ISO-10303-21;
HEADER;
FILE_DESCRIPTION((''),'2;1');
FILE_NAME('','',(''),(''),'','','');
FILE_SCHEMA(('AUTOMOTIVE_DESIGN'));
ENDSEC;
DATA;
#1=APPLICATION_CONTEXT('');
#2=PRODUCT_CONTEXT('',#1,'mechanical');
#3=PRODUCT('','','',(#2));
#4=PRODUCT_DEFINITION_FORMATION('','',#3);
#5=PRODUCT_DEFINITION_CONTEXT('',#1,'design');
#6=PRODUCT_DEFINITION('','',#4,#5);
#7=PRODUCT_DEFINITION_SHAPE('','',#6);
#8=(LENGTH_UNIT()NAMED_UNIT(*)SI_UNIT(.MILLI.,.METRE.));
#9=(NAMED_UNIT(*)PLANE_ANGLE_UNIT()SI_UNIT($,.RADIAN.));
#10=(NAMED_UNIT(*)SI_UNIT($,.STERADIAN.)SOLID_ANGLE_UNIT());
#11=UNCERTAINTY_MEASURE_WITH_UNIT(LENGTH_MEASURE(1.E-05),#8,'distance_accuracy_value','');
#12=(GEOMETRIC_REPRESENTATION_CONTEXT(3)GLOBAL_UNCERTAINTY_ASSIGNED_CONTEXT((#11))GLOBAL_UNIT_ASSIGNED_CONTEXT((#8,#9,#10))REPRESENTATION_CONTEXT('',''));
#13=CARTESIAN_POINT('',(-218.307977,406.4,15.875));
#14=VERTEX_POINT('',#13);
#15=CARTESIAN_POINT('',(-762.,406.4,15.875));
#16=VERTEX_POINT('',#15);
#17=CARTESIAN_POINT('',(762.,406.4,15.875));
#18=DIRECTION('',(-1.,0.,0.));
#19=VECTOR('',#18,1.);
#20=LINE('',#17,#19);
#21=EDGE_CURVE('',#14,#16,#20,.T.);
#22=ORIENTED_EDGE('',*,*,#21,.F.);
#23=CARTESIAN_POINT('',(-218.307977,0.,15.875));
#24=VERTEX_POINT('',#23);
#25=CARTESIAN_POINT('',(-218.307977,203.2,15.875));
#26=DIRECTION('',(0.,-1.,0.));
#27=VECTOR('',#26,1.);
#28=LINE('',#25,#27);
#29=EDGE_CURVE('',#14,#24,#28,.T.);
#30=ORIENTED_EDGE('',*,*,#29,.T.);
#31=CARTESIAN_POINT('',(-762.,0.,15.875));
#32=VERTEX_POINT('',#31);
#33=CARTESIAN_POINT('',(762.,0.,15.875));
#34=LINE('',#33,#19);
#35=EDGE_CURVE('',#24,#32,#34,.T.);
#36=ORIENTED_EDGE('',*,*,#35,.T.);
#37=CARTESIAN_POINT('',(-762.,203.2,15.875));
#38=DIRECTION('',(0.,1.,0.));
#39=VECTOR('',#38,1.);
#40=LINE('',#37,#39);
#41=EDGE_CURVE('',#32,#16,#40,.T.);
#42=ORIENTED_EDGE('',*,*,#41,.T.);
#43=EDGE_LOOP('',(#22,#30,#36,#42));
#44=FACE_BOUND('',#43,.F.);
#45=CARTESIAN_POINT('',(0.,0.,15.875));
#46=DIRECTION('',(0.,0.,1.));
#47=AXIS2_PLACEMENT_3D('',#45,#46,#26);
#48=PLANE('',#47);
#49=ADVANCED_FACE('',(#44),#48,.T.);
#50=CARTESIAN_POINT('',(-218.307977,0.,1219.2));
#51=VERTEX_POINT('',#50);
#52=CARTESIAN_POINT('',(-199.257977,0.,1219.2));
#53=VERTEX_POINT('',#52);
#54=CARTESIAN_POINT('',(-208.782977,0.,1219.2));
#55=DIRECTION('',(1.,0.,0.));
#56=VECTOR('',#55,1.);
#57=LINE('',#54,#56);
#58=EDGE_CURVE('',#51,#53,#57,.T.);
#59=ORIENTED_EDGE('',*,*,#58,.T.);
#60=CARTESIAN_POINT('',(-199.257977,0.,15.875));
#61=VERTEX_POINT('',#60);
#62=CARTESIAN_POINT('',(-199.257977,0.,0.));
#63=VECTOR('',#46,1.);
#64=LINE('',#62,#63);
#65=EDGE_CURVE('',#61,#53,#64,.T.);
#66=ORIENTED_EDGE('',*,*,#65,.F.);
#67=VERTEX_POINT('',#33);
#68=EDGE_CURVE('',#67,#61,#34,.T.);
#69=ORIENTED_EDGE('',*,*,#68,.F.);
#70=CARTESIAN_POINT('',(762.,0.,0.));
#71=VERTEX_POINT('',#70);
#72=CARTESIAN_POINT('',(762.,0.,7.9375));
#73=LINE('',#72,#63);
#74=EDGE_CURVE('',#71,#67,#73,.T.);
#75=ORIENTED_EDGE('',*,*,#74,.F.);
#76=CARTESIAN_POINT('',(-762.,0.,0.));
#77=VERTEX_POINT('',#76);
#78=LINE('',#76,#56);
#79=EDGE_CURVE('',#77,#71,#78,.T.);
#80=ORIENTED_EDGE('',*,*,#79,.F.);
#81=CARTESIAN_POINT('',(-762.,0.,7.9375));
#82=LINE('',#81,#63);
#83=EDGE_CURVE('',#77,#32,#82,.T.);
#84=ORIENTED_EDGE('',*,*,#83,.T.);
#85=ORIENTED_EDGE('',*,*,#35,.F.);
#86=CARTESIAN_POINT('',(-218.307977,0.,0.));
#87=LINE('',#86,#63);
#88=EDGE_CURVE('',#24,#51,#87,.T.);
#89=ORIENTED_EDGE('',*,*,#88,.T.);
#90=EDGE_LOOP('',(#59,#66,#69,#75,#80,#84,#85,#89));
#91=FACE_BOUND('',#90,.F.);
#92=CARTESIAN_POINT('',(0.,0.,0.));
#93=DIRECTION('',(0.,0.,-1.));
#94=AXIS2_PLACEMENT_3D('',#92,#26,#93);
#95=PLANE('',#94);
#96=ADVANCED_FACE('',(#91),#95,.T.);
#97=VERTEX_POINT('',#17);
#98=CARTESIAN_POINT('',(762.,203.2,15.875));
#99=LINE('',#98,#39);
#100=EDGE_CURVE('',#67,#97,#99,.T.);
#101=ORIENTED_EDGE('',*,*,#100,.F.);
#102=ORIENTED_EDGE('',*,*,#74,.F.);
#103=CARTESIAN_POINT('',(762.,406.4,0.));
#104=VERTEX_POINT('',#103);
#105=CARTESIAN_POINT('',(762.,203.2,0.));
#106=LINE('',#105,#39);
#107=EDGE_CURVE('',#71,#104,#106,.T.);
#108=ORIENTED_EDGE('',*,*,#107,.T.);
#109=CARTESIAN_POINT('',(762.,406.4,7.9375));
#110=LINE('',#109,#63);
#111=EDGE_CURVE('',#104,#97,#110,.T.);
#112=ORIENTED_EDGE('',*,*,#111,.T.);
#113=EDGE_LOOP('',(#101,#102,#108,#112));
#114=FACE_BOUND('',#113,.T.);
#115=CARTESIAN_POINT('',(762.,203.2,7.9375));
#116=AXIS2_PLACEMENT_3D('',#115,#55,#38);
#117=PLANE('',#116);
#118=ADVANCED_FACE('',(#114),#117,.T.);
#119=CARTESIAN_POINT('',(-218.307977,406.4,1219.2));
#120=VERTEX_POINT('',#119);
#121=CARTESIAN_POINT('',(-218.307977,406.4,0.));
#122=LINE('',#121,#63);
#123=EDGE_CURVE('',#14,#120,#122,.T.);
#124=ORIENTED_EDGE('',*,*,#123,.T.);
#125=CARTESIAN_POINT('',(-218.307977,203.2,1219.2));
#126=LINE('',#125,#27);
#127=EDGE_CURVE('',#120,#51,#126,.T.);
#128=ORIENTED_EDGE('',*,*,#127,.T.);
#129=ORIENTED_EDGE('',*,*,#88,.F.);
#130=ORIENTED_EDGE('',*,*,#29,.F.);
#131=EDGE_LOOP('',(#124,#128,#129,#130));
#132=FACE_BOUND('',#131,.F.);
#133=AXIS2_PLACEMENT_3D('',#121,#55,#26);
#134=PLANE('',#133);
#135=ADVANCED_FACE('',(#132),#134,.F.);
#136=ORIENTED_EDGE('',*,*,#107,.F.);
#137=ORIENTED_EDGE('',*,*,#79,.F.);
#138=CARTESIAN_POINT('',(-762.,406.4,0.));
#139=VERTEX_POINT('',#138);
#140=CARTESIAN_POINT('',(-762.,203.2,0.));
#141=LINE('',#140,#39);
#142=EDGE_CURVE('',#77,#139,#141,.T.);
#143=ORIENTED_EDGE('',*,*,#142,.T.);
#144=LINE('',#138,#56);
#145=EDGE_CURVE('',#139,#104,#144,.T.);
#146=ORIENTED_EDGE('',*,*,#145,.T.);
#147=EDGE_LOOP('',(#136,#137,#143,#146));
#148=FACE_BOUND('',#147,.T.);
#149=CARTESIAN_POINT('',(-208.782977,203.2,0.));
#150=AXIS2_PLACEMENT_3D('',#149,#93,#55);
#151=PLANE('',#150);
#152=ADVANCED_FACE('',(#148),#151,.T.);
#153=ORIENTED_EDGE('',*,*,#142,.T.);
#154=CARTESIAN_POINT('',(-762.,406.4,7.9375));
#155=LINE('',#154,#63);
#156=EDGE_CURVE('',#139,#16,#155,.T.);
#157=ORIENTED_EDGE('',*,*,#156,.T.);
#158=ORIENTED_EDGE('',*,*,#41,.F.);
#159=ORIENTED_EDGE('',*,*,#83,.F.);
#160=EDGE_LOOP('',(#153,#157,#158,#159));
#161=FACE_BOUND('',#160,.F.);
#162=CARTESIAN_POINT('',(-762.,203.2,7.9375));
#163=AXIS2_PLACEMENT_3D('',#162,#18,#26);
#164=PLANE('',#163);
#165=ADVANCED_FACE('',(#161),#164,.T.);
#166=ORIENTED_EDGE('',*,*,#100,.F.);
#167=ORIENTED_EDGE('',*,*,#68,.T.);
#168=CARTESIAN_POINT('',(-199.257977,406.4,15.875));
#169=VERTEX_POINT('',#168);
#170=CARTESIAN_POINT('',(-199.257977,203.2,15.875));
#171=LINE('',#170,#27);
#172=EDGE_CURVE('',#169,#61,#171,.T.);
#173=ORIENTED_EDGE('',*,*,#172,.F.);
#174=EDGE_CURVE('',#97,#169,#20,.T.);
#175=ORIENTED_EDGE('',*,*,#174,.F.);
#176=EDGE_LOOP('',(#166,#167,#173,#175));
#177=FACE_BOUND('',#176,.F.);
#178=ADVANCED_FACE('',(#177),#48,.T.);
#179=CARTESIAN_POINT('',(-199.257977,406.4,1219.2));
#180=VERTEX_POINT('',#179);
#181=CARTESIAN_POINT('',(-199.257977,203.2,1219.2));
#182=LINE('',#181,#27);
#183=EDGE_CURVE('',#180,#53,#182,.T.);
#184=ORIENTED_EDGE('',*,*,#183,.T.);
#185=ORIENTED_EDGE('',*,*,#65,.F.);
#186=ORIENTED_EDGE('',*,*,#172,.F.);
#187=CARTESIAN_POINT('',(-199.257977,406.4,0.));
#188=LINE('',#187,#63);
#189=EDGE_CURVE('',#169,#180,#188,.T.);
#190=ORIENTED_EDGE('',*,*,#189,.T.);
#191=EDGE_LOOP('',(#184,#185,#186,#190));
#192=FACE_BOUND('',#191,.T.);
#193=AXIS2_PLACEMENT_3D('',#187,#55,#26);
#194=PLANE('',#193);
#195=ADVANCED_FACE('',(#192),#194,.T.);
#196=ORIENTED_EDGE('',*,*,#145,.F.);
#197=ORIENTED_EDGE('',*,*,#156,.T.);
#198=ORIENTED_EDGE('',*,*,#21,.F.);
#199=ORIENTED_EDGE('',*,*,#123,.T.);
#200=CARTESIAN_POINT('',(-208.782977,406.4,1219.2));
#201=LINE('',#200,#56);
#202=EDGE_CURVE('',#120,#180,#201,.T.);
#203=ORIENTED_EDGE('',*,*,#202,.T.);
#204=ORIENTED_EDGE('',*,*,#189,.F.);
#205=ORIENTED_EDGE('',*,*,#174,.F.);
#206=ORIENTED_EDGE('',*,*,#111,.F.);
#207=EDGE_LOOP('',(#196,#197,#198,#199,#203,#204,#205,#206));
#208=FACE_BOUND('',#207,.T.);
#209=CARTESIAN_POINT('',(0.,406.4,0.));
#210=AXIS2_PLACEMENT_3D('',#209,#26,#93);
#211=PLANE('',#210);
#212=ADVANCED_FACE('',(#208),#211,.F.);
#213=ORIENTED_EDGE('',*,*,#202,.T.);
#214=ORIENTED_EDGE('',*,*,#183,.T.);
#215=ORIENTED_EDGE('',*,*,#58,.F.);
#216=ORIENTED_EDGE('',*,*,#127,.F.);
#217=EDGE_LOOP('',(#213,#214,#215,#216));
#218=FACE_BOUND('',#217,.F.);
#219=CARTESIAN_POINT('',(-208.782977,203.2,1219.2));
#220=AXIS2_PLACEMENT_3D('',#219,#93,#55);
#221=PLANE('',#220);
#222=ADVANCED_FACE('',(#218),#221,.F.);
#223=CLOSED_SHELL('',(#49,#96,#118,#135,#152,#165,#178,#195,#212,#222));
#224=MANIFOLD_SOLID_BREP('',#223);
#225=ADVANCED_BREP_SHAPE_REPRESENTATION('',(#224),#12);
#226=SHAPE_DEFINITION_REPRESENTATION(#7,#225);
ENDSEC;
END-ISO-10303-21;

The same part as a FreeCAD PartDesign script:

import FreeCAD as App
import Part
import Sketcher
Q = App.Units.Quantity

doc = App.newDocument("Part")
params = doc.addObject("Spreadsheet::Sheet", "Params")
for row, (alias, value) in enumerate([
    ("sketch1_width", "16 in"),
    ("sketch1_height", "0.625 in"),
    ("pad1_length", "30 in"),
    ("sketch2_height", "16 in"),
    ("sketch2_width", "0.75 in"),
    ("pad2_length", "48 in"),
], start=1):
    params.set(f"A{row}", alias)
    params.set(f"B{row}", "=" + value)
    params.setAlias(f"B{row}", alias)

body = doc.addObject("PartDesign::Body", "Body")

# Sketch on YZ plane
sketch1 = body.newObject("Sketcher::SketchObject", "Sketch")
sketch1.AttachmentSupport = (doc.getObject("YZ_Plane"), [""])
sketch1.MapMode = "FlatFace"
sketch1.addGeometry([
    Part.LineSegment(App.Vector(0, 16, 0), App.Vector(0, 0, 0)),
    Part.LineSegment(App.Vector(0, 0, 0), App.Vector(406, 0, 0)),
    Part.LineSegment(App.Vector(406, 0, 0), App.Vector(406, 16, 0)),
    Part.LineSegment(App.Vector(406, 16, 0), App.Vector(0, 16, 0)),
], False)
sketch1.addConstraint([
    Sketcher.Constraint("Coincident", 0, 2, 1, 1),
    Sketcher.Constraint("Coincident", 1, 2, 2, 1),
    Sketcher.Constraint("Coincident", 2, 2, 3, 1),
    Sketcher.Constraint("Coincident", 3, 2, 0, 1),
    Sketcher.Constraint("Vertical", 0),
    Sketcher.Constraint("Horizontal", 1),
    Sketcher.Constraint("Vertical", 2),
    Sketcher.Constraint("Horizontal", 3),
    Sketcher.Constraint("Coincident", 0, 2, -1, 1),
    Sketcher.Constraint("DistanceX", 1, 1, 1, 2, Q("16 in")),
    Sketcher.Constraint("DistanceY", 0, 2, 0, 1, Q("0.625 in")),
])
sketch1.setExpression("Constraints[9]", "Params.sketch1_width")
sketch1.setExpression("Constraints[10]", "Params.sketch1_height")
pad1 = body.newObject("PartDesign::Pad", "Pad")
pad1.Profile = sketch1
pad1.setExpression("Length", "Params.pad1_length")
body2 = doc.addObject("PartDesign::Body", "Body001")
doc.recompute()

body2.BaseFeature = body
doc.recompute()

mirroring = doc.addObject("Part::Mirroring", "Mirroring")
mirroring.Source = body
mirroring.Base = App.Vector(0, 0, 0)
mirroring.Normal = App.Vector(1, 0, 0)
body3 = doc.addObject("PartDesign::Body", "Body002")
body3.BaseFeature = mirroring
boolean = body2.newObject("PartDesign::Boolean", "Boolean")
boolean.Type = "Fuse"
boolean.addObjects([body3])
doc.recompute()

# Sketch on XY plane
sketch2 = body2.newObject("Sketcher::SketchObject", "Sketch001")
sketch2.AttachmentSupport = (doc.getObject("XY_Plane001"), [""])
sketch2.MapMode = "FlatFace"
sketch2.addGeometry([
    Part.LineSegment(App.Vector(-218, 0, 0), App.Vector(-218, 406, 0)),
    Part.LineSegment(App.Vector(-218, 406, 0), App.Vector(-199, 406, 0)),
    Part.LineSegment(App.Vector(-199, 406, 0), App.Vector(-199, 0, 0)),
    Part.LineSegment(App.Vector(-199, 0, 0), App.Vector(-218, 0, 0)),
], False)
sketch2.addConstraint([
    Sketcher.Constraint("Coincident", 0, 2, 1, 1),
    Sketcher.Constraint("Coincident", 1, 2, 2, 1),
    Sketcher.Constraint("Coincident", 2, 2, 3, 1),
    Sketcher.Constraint("Coincident", 3, 2, 0, 1),
    Sketcher.Constraint("Vertical", 0),
    Sketcher.Constraint("Horizontal", 1),
    Sketcher.Constraint("Vertical", 2),
    Sketcher.Constraint("Horizontal", 3),
    Sketcher.Constraint("PointOnObject", 2, 2, -1),
    Sketcher.Constraint("DistanceY", 0, 1, 0, 2, Q("16 in")),
    Sketcher.Constraint("DistanceX", 1, 1, 1, 2, Q("0.75 in")),
    Sketcher.Constraint("DistanceX", 0, 2, -1, 1, 218.307977),
])
sketch2.setExpression("Constraints[9]", "Params.sketch2_height")
sketch2.setExpression("Constraints[10]", "Params.sketch2_width")
pad2 = body2.newObject("PartDesign::Pad", "Pad001")
pad2.Profile = sketch2
pad2.setExpression("Length", "Params.pad2_length")
mirroring.Visibility = False

doc.recompute()
